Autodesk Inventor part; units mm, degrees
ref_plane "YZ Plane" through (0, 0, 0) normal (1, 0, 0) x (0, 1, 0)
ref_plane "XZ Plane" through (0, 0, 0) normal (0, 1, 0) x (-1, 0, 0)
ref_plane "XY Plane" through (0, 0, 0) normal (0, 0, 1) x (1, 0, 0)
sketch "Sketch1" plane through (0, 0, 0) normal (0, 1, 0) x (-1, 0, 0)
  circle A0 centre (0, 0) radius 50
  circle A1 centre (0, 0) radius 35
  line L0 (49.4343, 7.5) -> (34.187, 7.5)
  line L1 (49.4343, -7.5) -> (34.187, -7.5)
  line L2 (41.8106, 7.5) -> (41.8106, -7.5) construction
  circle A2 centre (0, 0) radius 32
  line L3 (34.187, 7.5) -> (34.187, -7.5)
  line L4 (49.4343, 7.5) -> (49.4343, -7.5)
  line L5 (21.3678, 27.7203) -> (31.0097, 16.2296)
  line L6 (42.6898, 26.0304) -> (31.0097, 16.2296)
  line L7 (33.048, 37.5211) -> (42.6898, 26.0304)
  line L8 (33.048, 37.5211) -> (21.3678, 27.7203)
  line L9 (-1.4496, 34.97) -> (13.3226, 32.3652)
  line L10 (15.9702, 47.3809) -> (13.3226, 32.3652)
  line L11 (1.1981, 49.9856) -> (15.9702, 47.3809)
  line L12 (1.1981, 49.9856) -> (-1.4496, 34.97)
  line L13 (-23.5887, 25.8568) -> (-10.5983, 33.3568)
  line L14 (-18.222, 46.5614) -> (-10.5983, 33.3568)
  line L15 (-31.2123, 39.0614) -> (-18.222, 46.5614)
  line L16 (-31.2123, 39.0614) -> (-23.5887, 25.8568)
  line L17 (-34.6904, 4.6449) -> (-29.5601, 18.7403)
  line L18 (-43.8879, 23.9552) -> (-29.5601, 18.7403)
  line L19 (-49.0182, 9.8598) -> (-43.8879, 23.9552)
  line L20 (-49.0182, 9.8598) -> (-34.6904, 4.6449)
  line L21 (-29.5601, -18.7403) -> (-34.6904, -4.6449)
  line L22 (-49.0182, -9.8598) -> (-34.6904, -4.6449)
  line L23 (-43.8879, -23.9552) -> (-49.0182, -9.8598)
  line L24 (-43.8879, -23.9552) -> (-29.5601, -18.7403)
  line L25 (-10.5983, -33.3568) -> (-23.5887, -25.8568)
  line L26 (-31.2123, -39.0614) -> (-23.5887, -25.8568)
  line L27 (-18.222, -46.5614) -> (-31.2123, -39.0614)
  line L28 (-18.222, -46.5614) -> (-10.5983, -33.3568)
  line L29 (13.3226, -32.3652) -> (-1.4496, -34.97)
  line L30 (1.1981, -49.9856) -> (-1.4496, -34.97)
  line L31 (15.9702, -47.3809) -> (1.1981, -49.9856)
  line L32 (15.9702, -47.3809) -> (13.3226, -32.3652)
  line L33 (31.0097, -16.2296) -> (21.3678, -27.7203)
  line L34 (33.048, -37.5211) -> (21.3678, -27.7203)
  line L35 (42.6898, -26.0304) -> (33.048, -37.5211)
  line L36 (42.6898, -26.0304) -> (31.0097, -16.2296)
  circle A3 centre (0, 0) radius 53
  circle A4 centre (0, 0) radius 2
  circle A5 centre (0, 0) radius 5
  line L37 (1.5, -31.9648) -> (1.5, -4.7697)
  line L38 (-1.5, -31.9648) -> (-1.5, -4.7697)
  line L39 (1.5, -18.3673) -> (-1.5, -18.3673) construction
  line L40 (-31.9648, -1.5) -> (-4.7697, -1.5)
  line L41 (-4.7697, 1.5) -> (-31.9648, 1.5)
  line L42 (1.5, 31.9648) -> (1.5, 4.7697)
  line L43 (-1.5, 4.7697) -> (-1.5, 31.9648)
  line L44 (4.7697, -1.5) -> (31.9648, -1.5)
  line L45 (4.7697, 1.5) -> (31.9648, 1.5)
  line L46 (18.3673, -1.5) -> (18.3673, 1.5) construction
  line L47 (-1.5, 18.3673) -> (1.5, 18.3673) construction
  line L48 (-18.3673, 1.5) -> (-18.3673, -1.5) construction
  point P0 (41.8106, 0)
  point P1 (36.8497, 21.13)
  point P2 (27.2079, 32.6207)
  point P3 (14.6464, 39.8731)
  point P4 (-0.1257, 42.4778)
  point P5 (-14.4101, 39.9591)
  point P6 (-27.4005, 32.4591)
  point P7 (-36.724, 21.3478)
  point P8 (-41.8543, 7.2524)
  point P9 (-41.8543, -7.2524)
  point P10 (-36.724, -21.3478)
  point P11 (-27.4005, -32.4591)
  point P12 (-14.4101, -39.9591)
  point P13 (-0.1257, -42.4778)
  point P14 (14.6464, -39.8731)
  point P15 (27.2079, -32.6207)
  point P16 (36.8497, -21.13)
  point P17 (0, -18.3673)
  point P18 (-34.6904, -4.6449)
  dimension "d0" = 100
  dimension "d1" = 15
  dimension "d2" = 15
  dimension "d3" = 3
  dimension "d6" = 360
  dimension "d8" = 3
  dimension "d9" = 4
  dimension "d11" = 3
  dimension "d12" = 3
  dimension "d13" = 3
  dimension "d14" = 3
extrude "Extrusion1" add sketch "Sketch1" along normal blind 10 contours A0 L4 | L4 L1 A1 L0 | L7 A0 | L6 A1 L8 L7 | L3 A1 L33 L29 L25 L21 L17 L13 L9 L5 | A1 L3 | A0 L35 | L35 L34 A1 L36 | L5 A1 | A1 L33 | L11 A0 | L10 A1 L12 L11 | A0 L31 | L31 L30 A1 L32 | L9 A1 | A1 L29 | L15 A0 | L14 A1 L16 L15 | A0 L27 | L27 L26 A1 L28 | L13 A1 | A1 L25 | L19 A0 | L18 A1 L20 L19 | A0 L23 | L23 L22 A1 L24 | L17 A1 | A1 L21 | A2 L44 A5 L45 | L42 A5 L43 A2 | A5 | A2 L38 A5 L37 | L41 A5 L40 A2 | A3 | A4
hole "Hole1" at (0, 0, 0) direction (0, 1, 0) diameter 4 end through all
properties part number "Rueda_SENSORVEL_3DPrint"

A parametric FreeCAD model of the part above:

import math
import FreeCAD as App
import Part
import Sketcher
Q = App.Units.Quantity

doc = App.newDocument("Part")
body = doc.addObject("PartDesign::Body", "Body")

# Sketch on XZ plane
sketch1 = body.newObject("Sketcher::SketchObject", "Sketch")
sketch1.AttachmentSupport = (doc.getObject("XZ_Plane"), [""])
sketch1.MapMode = "FlatFace"
sketch1.addGeometry([
    Part.Circle(App.Vector(0, 0, 0), App.Vector(0, 0, 1), 53),  # 0
    Part.ArcOfCircle(Part.Circle(App.Vector(0, 0, 0), App.Vector(0, 0, 1), 50), math.radians(-171), math.radians(-149)),  # 1
    Part.LineSegment(App.Vector(-42.7, -26, 0), App.Vector(-31, -16.2, 0)),  # 2
    Part.ArcOfCircle(Part.Circle(App.Vector(0, 0, 0), App.Vector(0, 0, 1), 35), math.radians(-167.63), math.radians(-152.37)),  # 3
    Part.LineSegment(App.Vector(-34.2, -7.5, 0), App.Vector(-49.4, -7.5, 0)),  # 4
    Part.ArcOfCircle(Part.Circle(App.Vector(0, 0, 0), App.Vector(0, 0, 1), 50), math.radians(149), math.radians(171)),  # 5
    Part.LineSegment(App.Vector(-49.4, 7.5, 0), App.Vector(-34.2, 7.5, 0)),  # 6
    Part.ArcOfCircle(Part.Circle(App.Vector(0, 0, 0), App.Vector(0, 0, 1), 35), math.radians(152.37), math.radians(167.63)),  # 7
    Part.LineSegment(App.Vector(-31, 16.2, 0), App.Vector(-42.7, 26, 0)),  # 8
    Part.ArcOfCircle(Part.Circle(App.Vector(0, 0, 0), App.Vector(0, 0, 1), 50), math.radians(109), math.radians(131)),  # 9
    Part.LineSegment(App.Vector(-33, 37.5, 0), App.Vector(-21.4, 27.7, 0)),  # 10
    Part.ArcOfCircle(Part.Circle(App.Vector(0, 0, 0), App.Vector(0, 0, 1), 35), math.radians(112.37), math.radians(127.63)),  # 11
    Part.LineSegment(App.Vector(-13.3, 32.4, 0), App.Vector(-16, 47.4, 0)),  # 12
    Part.ArcOfCircle(Part.Circle(App.Vector(0, 0, 0), App.Vector(0, 0, 1), 50), math.radians(69), math.radians(91)),  # 13
    Part.LineSegment(App.Vector(-1.2, 50, 0), App.Vector(1.4, 35, 0)),  # 14
    Part.ArcOfCircle(Part.Circle(App.Vector(0, 0, 0), App.Vector(0, 0, 1), 35), math.radians(72.37), math.radians(87.63)),  # 15
    Part.LineSegment(App.Vector(10.6, 33.4, 0), App.Vector(18.2, 46.6, 0)),  # 16
    Part.ArcOfCircle(Part.Circle(App.Vector(0, 0, 0), App.Vector(0, 0, 1), 50), math.radians(29), math.radians(51)),  # 17
    Part.LineSegment(App.Vector(31.2, 39.1, 0), App.Vector(23.6, 25.9, 0)),  # 18
    Part.ArcOfCircle(Part.Circle(App.Vector(0, 0, 0), App.Vector(0, 0, 1), 35), math.radians(32.37), math.radians(47.63)),  # 19
    Part.LineSegment(App.Vector(29.6, 18.7, 0), App.Vector(43.9, 24, 0)),  # 20
    Part.ArcOfCircle(Part.Circle(App.Vector(0, 0, 0), App.Vector(0, 0, 1), 50), math.radians(-11), math.radians(11)),  # 21
    Part.LineSegment(App.Vector(49, 9.9, 0), App.Vector(34.7, 4.6, 0)),  # 22
    Part.ArcOfCircle(Part.Circle(App.Vector(0, 0, 0), App.Vector(0, 0, 1), 35), math.radians(-7.63), math.radians(7.63)),  # 23
    Part.LineSegment(App.Vector(34.7, -4.6, 0), App.Vector(49, -9.9, 0)),  # 24
    Part.ArcOfCircle(Part.Circle(App.Vector(0, 0, 0), App.Vector(0, 0, 1), 50), math.radians(-51), math.radians(-29)),  # 25
    Part.LineSegment(App.Vector(43.9, -24, 0), App.Vector(29.6, -18.7, 0)),  # 26
    Part.ArcOfCircle(Part.Circle(App.Vector(0, 0, 0), App.Vector(0, 0, 1), 35), math.radians(-47.63), math.radians(-32.37)),  # 27
    Part.LineSegment(App.Vector(23.6, -25.9, 0), App.Vector(31.2, -39.1, 0)),  # 28
    Part.ArcOfCircle(Part.Circle(App.Vector(0, 0, 0), App.Vector(0, 0, 1), 50), math.radians(-91), math.radians(-69)),  # 29
    Part.LineSegment(App.Vector(18.2, -46.6, 0), App.Vector(10.6, -33.4, 0)),  # 30
    Part.ArcOfCircle(Part.Circle(App.Vector(0, 0, 0), App.Vector(0, 0, 1), 35), math.radians(-87.63), math.radians(-72.37)),  # 31
    Part.LineSegment(App.Vector(1.4, -35, 0), App.Vector(-1.2, -50, 0)),  # 32
    Part.ArcOfCircle(Part.Circle(App.Vector(0, 0, 0), App.Vector(0, 0, 1), 50), math.radians(-131), math.radians(-109)),  # 33
    Part.LineSegment(App.Vector(-16, -47.4, 0), App.Vector(-13.3, -32.4, 0)),  # 34
    Part.ArcOfCircle(Part.Circle(App.Vector(0, 0, 0), App.Vector(0, 0, 1), 35), math.radians(-127.63), math.radians(-112.37)),  # 35
    Part.LineSegment(App.Vector(-21.4, -27.7, 0), App.Vector(-33, -37.5, 0)),  # 36
    Part.ArcOfCircle(Part.Circle(App.Vector(0, 0, 0), App.Vector(0, 0, 1), 32), math.radians(93), math.radians(177)),  # 37
    Part.LineSegment(App.Vector(-32, 1.5, 0), App.Vector(-4.8, 1.5, 0)),  # 38
    Part.ArcOfCircle(Part.Circle(App.Vector(0, 0, 0), App.Vector(0, 0, 1), 5), math.radians(107), math.radians(163)),  # 39
    Part.LineSegment(App.Vector(-1.5, 4.8, 0), App.Vector(-1.5, 32, 0)),  # 40
    Part.ArcOfCircle(Part.Circle(App.Vector(0, 0, 0), App.Vector(0, 0, 1), 32), math.radians(3), math.radians(87)),  # 41
    Part.LineSegment(App.Vector(1.5, 32, 0), App.Vector(1.5, 4.8, 0)),  # 42
    Part.ArcOfCircle(Part.Circle(App.Vector(0, 0, 0), App.Vector(0, 0, 1), 5), math.radians(17), math.radians(73)),  # 43
    Part.LineSegment(App.Vector(4.8, 1.5, 0), App.Vector(32, 1.5, 0)),  # 44
    Part.ArcOfCircle(Part.Circle(App.Vector(0, 0, 0), App.Vector(0, 0, 1), 32), math.radians(-87), math.radians(-3)),  # 45
    Part.LineSegment(App.Vector(32, -1.5, 0), App.Vector(4.8, -1.5, 0)),  # 46
    Part.ArcOfCircle(Part.Circle(App.Vector(0, 0, 0), App.Vector(0, 0, 1), 5), math.radians(-73), math.radians(-17)),  # 47
    Part.LineSegment(App.Vector(1.5, -4.8, 0), App.Vector(1.5, -32, 0)),  # 48
    Part.ArcOfCircle(Part.Circle(App.Vector(0, 0, 0), App.Vector(0, 0, 1), 32), math.radians(-177), math.radians(-93)),  # 49
    Part.LineSegment(App.Vector(-1.5, -32, 0), App.Vector(-1.5, -4.8, 0)),  # 50
    Part.ArcOfCircle(Part.Circle(App.Vector(0, 0, 0), App.Vector(0, 0, 1), 5), math.radians(-163), math.radians(-107)),  # 51
    Part.LineSegment(App.Vector(-4.8, -1.5, 0), App.Vector(-32, -1.5, 0)),  # 52
], False)
sketch1.addConstraint([
    Sketcher.Constraint("Coincident", 1, 2, 2, 1),
    Sketcher.Constraint("Coincident", 2, 2, 3, 2),
    Sketcher.Constraint("Coincident", 3, 1, 4, 1),
    Sketcher.Constraint("Coincident", 4, 2, 1, 1),
    Sketcher.Constraint("Coincident", 5, 2, 6, 1),
    Sketcher.Constraint("Coincident", 6, 2, 7, 2),
    Sketcher.Constraint("Coincident", 7, 1, 8, 1),
    Sketcher.Constraint("Coincident", 8, 2, 5, 1),
    Sketcher.Constraint("Coincident", 9, 2, 10, 1),
    Sketcher.Constraint("Coincident", 10, 2, 11, 2),
    Sketcher.Constraint("Coincident", 11, 1, 12, 1),
    Sketcher.Constraint("Coincident", 12, 2, 9, 1),
    Sketcher.Constraint("Coincident", 13, 2, 14, 1),
    Sketcher.Constraint("Coincident", 14, 2, 15, 2),
    Sketcher.Constraint("Coincident", 15, 1, 16, 1),
    Sketcher.Constraint("Coincident", 16, 2, 13, 1),
    Sketcher.Constraint("Coincident", 17, 2, 18, 1),
    Sketcher.Constraint("Coincident", 18, 2, 19, 2),
    Sketcher.Constraint("Coincident", 19, 1, 20, 1),
    Sketcher.Constraint("Coincident", 20, 2, 17, 1),
    Sketcher.Constraint("Coincident", 21, 2, 22, 1),
    Sketcher.Constraint("Coincident", 22, 2, 23, 2),
    Sketcher.Constraint("Coincident", 23, 1, 24, 1),
    Sketcher.Constraint("Coincident", 24, 2, 21, 1),
    Sketcher.Constraint("Coincident", 25, 2, 26, 1),
    Sketcher.Constraint("Coincident", 26, 2, 27, 2),
    Sketcher.Constraint("Coincident", 27, 1, 28, 1),
    Sketcher.Constraint("Coincident", 28, 2, 25, 1),
    Sketcher.Constraint("Coincident", 29, 2, 30, 1),
    Sketcher.Constraint("Coincident", 30, 2, 31, 2),
    Sketcher.Constraint("Coincident", 31, 1, 32, 1),
    Sketcher.Constraint("Coincident", 32, 2, 29, 1),
    Sketcher.Constraint("Coincident", 33, 2, 34, 1),
    Sketcher.Constraint("Coincident", 34, 2, 35, 2),
    Sketcher.Constraint("Coincident", 35, 1, 36, 1),
    Sketcher.Constraint("Coincident", 36, 2, 33, 1),
    Sketcher.Constraint("Coincident", 37, 2, 38, 1),
    Sketcher.Constraint("Coincident", 38, 2, 39, 2),
    Sketcher.Constraint("Coincident", 39, 1, 40, 1),
    Sketcher.Constraint("Coincident", 40, 2, 37, 1),
    Sketcher.Constraint("Coincident", 41, 2, 42, 1),
    Sketcher.Constraint("Coincident", 42, 2, 43, 2),
    Sketcher.Constraint("Coincident", 43, 1, 44, 1),
    Sketcher.Constraint("Coincident", 44, 2, 41, 1),
    Sketcher.Constraint("Coincident", 45, 2, 46, 1),
    Sketcher.Constraint("Coincident", 46, 2, 47, 2),
    Sketcher.Constraint("Coincident", 47, 1, 48, 1),
    Sketcher.Constraint("Coincident", 48, 2, 45, 1),
    Sketcher.Constraint("Coincident", 49, 2, 50, 1),
    Sketcher.Constraint("Coincident", 50, 2, 51, 2),
    Sketcher.Constraint("Coincident", 51, 1, 52, 1),
    Sketcher.Constraint("Coincident", 52, 2, 49, 1),
    Sketcher.Constraint("Horizontal", 4),
    Sketcher.Constraint("Horizontal", 6),
    Sketcher.Constraint("Horizontal", 38),
    Sketcher.Constraint("Vertical", 40),
    Sketcher.Constraint("Vertical", 42),
    Sketcher.Constraint("Horizontal", 44),
    Sketcher.Constraint("Horizontal", 46),
    Sketcher.Constraint("Vertical", 48),
    Sketcher.Constraint("Vertical", 50),
    Sketcher.Constraint("Horizontal", 52),
    Sketcher.Constraint("Coincident", 0, 3, -1, 1),
    Sketcher.Constraint("Coincident", 1, 3, -1, 1),
    Sketcher.Constraint("Coincident", 3, 3, -1, 1),
    Sketcher.Constraint("Coincident", 5, 3, -1, 1),
    Sketcher.Constraint("Coincident", 7, 3, -1, 1),
    Sketcher.Constraint("Coincident", 9, 3, -1, 1),
    Sketcher.Constraint("Coincident", 11, 3, -1, 1),
    Sketcher.Constraint("Coincident", 13, 3, -1, 1),
    Sketcher.Constraint("Coincident", 15, 3, -1, 1),
    Sketcher.Constraint("Coincident", 17, 3, -1, 1),
    Sketcher.Constraint("Coincident", 19, 3, -1, 1),
    Sketcher.Constraint("Coincident", 21, 3, -1, 1),
    Sketcher.Constraint("Coincident", 23, 3, -1, 1),
    Sketcher.Constraint("Coincident", 25, 3, -1, 1),
    Sketcher.Constraint("Coincident", 27, 3, -1, 1),
    Sketcher.Constraint("Coincident", 29, 3, -1, 1),
    Sketcher.Constraint("Coincident", 31, 3, -1, 1),
    Sketcher.Constraint("Coincident", 33, 3, -1, 1),
    Sketcher.Constraint("Coincident", 35, 3, -1, 1),
    Sketcher.Constraint("Coincident", 37, 3, -1, 1),
    Sketcher.Constraint("Coincident", 39, 3, -1, 1),
    Sketcher.Constraint("Coincident", 41, 3, -1, 1),
    Sketcher.Constraint("Coincident", 43, 3, -1, 1),
    Sketcher.Constraint("Coincident", 45, 3, -1, 1),
    Sketcher.Constraint("Coincident", 47, 3, -1, 1),
    Sketcher.Constraint("Coincident", 49, 3, -1, 1),
    Sketcher.Constraint("Coincident", 51, 3, -1, 1),
    Sketcher.Constraint("Equal", 1, 5),
    Sketcher.Constraint("Equal", 3, 7),
    Sketcher.Constraint("Equal", 5, 9),
    Sketcher.Constraint("Equal", 7, 11),
    Sketcher.Constraint("Equal", 9, 13),
    Sketcher.Constraint("Equal", 11, 15),
    Sketcher.Constraint("Equal", 13, 17),
    Sketcher.Constraint("Equal", 15, 19),
    Sketcher.Constraint("Equal", 17, 21),
    Sketcher.Constraint("Equal", 19, 23),
    Sketcher.Constraint("Equal", 21, 25),
    Sketcher.Constraint("Equal", 23, 27),
    Sketcher.Constraint("Equal", 25, 29),
    Sketcher.Constraint("Equal", 27, 31),
    Sketcher.Constraint("Equal", 29, 33),
    Sketcher.Constraint("Equal", 31, 35),
    Sketcher.Constraint("Equal", 37, 41),
    Sketcher.Constraint("Equal", 39, 43),
    Sketcher.Constraint("Equal", 41, 45),
    Sketcher.Constraint("Equal", 43, 47),
    Sketcher.Constraint("Equal", 45, 49),
    Sketcher.Constraint("Equal", 47, 51),
    Sketcher.Constraint("Parallel", 8, 10),
    Sketcher.Constraint("Parallel", 12, 14),
    Sketcher.Constraint("Parallel", 16, 18),
    Sketcher.Constraint("Parallel", 20, 22),
    Sketcher.Constraint("Parallel", 24, 26),
    Sketcher.Constraint("Parallel", 28, 30),
    Sketcher.Constraint("Parallel", 32, 34),
    Sketcher.Constraint("Parallel", 2, 36),
    Sketcher.Constraint("Horizontal", 40, 2, 41, 2),
    Sketcher.Constraint("Horizontal", 38, 2, 43, 1),
    Sketcher.Constraint("Horizontal", 48, 2, 49, 2),
    Sketcher.Constraint("Horizontal", 46, 2, 51, 1),
    Sketcher.Constraint("Vertical", 4, 2, 5, 2),
    Sketcher.Constraint("Vertical", 2, 2, 7, 1),
    Sketcher.Constraint("Vertical", 1, 2, 8, 2),
    Sketcher.Constraint("Vertical", 22, 2, 23, 1),
    Sketcher.Constraint("Vertical", 21, 2, 24, 2),
    Sketcher.Constraint("Vertical", 20, 2, 25, 2),
    Sketcher.Constraint("Vertical", 18, 2, 27, 1),
    Sketcher.Constraint("Vertical", 17, 2, 28, 2),
    Sketcher.Constraint("Vertical", 16, 2, 29, 2),
    Sketcher.Constraint("Vertical", 14, 2, 31, 1),
    Sketcher.Constraint("Vertical", 13, 2, 32, 2),
    Sketcher.Constraint("Vertical", 12, 2, 33, 2),
    Sketcher.Constraint("Vertical", 10, 2, 35, 1),
    Sketcher.Constraint("Vertical", 44, 2, 45, 2),
    Sketcher.Constraint("Vertical", 42, 2, 47, 1),
    Sketcher.Constraint("Equal", 52, 40),
    Sketcher.Constraint("Equal", 8, 10),
    Sketcher.Constraint("Equal", 10, 12),
    Sketcher.Constraint("Equal", 12, 14),
    Sketcher.Constraint("Equal", 14, 16),
    Sketcher.Constraint("Equal", 16, 18),
    Sketcher.Constraint("Equal", 18, 20),
    Sketcher.Constraint("Equal", 20, 22),
    Sketcher.Constraint("Radius", 1, Q("50 mm")),
    Sketcher.Constraint("Angle", 12, Q("99.9997 deg")),
    Sketcher.Constraint("Diameter", 0, Q("106 mm")),
    Sketcher.Constraint("Radius", 3, Q("35 mm")),
    Sketcher.Constraint("Radius", 37, Q("32 mm")),
    Sketcher.Constraint("Radius", 39, Q("5 mm")),
    Sketcher.Constraint("Angle", 2, Q("40 deg")),
    Sketcher.Constraint("Angle", 16, Q("60 deg")),
    Sketcher.Constraint("Angle", 20, Q("20 deg")),
    Sketcher.Constraint("DistanceY", 3, 1, -1, 1, Q("7.5 mm")),
    Sketcher.Constraint("DistanceY", -1, 1, 37, 2, Q("1.5 mm")),
    Sketcher.Constraint("DistanceY", -1, 1, 14, 2, Q("34.97 mm")),
])
pad1 = body.newObject("PartDesign::Pad", "Pad")
pad1.Profile = sketch1
pad1.Length = 10
pad1.Reversed = True

# Sketch on XZ plane
sketch2 = body.newObject("Sketcher::SketchObject", "Sketch001")
sketch2.AttachmentSupport = (doc.getObject("XZ_Plane"), [""])
sketch2.MapMode = "FlatFace"
sketch2.addGeometry(Part.Circle(App.Vector(0, 0, 0), App.Vector(0, 0, 1), 2), False)
sketch2.addConstraint([
    Sketcher.Constraint("Coincident", 0, 3, -1, 1),
    Sketcher.Constraint("Diameter", 0, Q("4 mm")),
])
doc.recompute()
hole = body.newObject("PartDesign::Hole", "Hole")
hole.Profile = sketch2
hole.ThreadType = "None"
hole.Diameter = 4
hole.DepthType = "ThroughAll"

doc.recompute()
